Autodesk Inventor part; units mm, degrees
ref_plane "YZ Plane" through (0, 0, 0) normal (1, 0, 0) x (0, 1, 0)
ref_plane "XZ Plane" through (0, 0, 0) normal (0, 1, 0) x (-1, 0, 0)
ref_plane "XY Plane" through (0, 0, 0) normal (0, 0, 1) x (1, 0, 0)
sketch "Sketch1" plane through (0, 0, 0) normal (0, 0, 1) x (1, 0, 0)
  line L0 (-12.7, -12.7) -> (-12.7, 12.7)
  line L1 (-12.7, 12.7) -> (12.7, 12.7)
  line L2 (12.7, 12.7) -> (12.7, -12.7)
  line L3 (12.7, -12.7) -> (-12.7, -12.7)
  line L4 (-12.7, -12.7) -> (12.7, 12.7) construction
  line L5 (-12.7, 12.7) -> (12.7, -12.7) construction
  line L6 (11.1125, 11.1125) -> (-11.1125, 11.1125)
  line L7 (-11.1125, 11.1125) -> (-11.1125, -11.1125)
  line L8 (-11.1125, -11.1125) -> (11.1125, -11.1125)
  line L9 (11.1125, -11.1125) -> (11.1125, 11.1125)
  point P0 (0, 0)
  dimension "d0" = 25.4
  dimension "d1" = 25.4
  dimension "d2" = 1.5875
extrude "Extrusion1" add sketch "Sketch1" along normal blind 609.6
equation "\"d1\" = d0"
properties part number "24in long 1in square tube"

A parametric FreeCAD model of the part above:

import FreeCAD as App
import Part
import Sketcher

V = App.Vector
Q = App.Units.Quantity


def add_polygon(sketch, points):
    """Adds a closed chain of lines whose ends are joined by coincident constraints."""
    first, n = sketch.GeometryCount, len(points)
    for a, b in zip(points, points[1:] + points[:1]):
        sketch.addGeometry(Part.LineSegment(App.Vector(*a, 0), App.Vector(*b, 0)), False)
    for i in range(n):
        sketch.addConstraint(Sketcher.Constraint("Coincident", first + i, 2, first + (i + 1) % n, 1))

doc = App.newDocument("Part")
body = doc.addObject("PartDesign::Body", "Body")

sketch1 = body.newObject("Sketcher::SketchObject", "Sketch")
sketch1.AttachmentSupport = (doc.getObject("XY_Plane"), [""])
sketch1.MapMode = "FlatFace"
add_polygon(sketch1, [(-13, 13), (-13, -13), (13, -13), (13, 13)])
add_polygon(sketch1, [(-11, 11), (11, 11), (11, -11), (-11, -11)])
sketch1.addConstraint([
    Sketcher.Constraint("Vertical", 0),
    Sketcher.Constraint("Horizontal", 1),
    Sketcher.Constraint("Vertical", 2),
    Sketcher.Constraint("Horizontal", 3),
    Sketcher.Constraint("Horizontal", 4),
    Sketcher.Constraint("Vertical", 5),
    Sketcher.Constraint("Horizontal", 6),
    Sketcher.Constraint("Vertical", 7),
    Sketcher.Constraint("Symmetric", 0, 2, 2, 2, -1, 1),
    Sketcher.Constraint("Symmetric", 4, 2, 6, 2, -1, 1),
    Sketcher.Constraint("Equal", 3, 0),
    Sketcher.Constraint("Equal", 6, 5),
    Sketcher.Constraint("DistanceX", 1, 1, 1, 2, Q("1 in")),
    Sketcher.Constraint("DistanceX", 4, 2, 2, 2, Q("0.0625 in")),
])
pad1 = body.newObject("PartDesign::Pad", "Pad")
pad1.Profile = sketch1
pad1.Length = Q("24 in")

doc.recompute()
